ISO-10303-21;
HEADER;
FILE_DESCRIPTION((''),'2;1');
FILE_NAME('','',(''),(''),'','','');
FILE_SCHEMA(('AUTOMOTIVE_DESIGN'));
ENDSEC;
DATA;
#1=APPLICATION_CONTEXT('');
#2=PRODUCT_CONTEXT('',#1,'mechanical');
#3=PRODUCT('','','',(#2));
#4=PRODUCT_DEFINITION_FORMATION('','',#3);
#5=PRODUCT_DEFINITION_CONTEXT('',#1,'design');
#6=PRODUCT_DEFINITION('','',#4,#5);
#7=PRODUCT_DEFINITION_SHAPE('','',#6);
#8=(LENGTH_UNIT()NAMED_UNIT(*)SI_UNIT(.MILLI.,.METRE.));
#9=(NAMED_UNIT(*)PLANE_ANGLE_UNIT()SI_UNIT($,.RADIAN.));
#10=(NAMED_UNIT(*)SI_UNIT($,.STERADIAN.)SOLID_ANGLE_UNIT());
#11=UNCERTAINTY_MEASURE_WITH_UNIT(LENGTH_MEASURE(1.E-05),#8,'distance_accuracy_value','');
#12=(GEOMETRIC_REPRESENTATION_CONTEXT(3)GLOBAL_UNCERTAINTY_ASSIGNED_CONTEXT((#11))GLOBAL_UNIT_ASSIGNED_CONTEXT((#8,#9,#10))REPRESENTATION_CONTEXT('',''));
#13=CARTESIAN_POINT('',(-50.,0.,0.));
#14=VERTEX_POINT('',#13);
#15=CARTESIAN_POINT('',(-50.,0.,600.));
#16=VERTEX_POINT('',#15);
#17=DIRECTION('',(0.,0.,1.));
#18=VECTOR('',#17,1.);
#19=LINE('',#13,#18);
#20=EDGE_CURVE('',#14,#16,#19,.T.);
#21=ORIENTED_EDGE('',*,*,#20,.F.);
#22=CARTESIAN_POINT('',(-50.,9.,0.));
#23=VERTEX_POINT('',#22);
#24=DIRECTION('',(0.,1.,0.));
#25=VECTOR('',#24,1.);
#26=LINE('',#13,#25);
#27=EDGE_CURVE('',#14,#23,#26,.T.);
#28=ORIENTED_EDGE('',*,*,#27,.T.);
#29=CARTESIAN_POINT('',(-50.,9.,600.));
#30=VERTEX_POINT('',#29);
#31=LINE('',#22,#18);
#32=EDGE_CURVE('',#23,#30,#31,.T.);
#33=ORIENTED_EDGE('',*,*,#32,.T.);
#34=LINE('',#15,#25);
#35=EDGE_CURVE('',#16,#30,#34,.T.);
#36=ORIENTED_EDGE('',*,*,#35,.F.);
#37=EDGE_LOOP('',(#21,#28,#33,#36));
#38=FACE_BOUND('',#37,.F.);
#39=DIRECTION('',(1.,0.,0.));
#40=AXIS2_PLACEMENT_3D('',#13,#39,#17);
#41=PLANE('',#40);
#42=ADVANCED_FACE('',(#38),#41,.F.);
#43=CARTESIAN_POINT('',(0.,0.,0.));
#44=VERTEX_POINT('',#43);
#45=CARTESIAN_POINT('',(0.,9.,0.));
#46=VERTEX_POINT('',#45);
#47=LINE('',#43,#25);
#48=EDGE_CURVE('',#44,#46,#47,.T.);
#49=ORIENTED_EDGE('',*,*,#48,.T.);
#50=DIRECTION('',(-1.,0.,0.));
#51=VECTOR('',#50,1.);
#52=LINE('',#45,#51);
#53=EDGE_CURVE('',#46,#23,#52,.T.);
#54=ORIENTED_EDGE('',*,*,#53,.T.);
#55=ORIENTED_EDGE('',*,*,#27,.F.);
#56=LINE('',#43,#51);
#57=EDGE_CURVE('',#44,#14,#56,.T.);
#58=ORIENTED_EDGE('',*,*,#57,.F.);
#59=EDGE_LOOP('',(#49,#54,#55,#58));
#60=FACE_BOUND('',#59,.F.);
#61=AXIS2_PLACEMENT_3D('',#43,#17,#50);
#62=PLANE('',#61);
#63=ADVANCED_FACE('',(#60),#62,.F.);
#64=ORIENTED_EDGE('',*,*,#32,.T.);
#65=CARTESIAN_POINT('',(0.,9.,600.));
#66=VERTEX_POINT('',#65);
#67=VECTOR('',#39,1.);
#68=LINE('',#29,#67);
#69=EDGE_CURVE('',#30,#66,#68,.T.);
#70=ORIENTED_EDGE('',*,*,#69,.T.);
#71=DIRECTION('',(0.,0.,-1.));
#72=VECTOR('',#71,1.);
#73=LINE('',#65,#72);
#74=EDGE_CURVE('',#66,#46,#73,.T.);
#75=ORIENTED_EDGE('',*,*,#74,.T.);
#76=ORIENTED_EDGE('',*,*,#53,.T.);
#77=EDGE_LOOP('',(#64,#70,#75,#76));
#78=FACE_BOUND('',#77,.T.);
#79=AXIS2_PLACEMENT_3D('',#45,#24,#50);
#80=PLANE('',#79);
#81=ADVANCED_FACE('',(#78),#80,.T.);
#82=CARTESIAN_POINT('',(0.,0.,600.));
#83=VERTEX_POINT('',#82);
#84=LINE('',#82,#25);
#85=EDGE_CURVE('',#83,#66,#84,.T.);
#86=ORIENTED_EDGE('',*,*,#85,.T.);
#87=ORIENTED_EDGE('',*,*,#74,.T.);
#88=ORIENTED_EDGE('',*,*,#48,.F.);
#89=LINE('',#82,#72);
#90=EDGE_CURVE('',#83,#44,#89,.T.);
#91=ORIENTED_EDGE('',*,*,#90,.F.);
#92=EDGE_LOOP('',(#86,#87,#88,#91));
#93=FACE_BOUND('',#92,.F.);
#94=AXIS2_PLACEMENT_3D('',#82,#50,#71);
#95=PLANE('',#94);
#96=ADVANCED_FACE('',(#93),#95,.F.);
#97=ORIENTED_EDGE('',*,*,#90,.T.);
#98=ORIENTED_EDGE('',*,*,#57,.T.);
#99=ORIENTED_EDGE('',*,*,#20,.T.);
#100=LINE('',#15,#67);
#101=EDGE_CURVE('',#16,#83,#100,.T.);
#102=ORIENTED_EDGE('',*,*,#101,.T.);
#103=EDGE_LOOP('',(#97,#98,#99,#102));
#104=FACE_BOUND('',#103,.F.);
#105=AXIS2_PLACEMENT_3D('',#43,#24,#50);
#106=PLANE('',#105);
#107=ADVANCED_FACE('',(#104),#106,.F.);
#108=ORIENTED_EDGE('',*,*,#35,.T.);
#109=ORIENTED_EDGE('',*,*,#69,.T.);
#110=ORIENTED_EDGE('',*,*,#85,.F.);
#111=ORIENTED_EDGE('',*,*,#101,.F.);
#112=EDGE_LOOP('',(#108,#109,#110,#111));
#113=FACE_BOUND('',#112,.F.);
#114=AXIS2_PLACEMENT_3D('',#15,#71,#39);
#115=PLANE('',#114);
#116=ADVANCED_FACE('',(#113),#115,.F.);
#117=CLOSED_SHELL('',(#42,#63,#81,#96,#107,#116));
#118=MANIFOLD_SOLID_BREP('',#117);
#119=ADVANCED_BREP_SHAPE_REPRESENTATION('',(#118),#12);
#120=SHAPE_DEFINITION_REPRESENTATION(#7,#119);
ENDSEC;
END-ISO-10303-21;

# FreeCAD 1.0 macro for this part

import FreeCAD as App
import Part
import Sketcher
from FreeCAD import Vector


def add_polygon(sketch, points):
    """Adds a closed chain of lines whose ends are joined by coincident constraints."""
    first, n = sketch.GeometryCount, len(points)
    for a, b in zip(points, points[1:] + points[:1]):
        sketch.addGeometry(Part.LineSegment(App.Vector(*a, 0), App.Vector(*b, 0)), False)
    for i in range(n):
        sketch.addConstraint(Sketcher.Constraint("Coincident", first + i, 2, first + (i + 1) % n, 1))

doc = App.newDocument("Part")
body = doc.addObject("PartDesign::Body", "Body")

sketch1 = body.newObject("Sketcher::SketchObject", "Sketch")
sketch1.AttachmentSupport = (doc.getObject("XZ_Plane"), [""])
sketch1.MapMode = "FlatFace"
add_polygon(sketch1, [(0, 600), (0, 0), (-50, 0), (-50, 600)])
sketch1.addConstraint([
    Sketcher.Constraint("Vertical", 0),
    Sketcher.Constraint("Horizontal", 1),
    Sketcher.Constraint("Vertical", 2),
    Sketcher.Constraint("Horizontal", 3),
    Sketcher.Constraint("Coincident", 0, 2, -1, 1),
    Sketcher.Constraint("DistanceX", 1, 2, 1, 1, 50.0),
    Sketcher.Constraint("DistanceY", 0, 2, 0, 1, 600.0),
])
pad1 = body.newObject("PartDesign::Pad", "Pad")
pad1.Profile = sketch1
pad1.Length = 9
pad1.Reversed = True

doc.recompute()
